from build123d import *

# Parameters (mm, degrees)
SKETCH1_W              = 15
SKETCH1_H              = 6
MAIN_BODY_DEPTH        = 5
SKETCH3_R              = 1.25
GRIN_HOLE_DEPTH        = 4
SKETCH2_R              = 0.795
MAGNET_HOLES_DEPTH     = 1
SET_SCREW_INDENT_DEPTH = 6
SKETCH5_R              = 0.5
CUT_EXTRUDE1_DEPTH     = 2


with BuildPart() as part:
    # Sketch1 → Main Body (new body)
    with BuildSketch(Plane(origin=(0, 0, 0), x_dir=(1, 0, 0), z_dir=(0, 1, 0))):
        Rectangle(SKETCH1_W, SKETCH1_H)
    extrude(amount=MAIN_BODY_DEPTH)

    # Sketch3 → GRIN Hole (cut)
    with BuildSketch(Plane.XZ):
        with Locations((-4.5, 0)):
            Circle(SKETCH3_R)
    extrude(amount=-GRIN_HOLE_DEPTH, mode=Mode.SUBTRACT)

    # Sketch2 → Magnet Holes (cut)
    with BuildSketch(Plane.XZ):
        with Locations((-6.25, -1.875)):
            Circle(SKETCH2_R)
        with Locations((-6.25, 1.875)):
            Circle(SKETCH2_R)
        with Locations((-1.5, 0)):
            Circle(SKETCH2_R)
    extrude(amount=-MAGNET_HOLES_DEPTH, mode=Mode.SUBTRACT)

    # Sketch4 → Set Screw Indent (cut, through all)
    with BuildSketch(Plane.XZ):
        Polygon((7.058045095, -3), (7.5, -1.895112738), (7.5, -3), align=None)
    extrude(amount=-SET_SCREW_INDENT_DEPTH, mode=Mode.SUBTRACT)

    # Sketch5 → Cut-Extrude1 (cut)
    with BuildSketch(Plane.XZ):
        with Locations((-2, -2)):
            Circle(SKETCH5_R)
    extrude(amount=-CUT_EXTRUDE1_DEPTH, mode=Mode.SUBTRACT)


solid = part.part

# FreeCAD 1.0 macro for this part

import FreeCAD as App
import Part
import Sketcher
Q = App.Units.Quantity


def add_polygon(sketch, points):
    """Adds a closed chain of lines whose ends are joined by coincident constraints."""
    first, n = sketch.GeometryCount, len(points)
    for a, b in zip(points, points[1:] + points[:1]):
        sketch.addGeometry(Part.LineSegment(App.Vector(*a, 0), App.Vector(*b, 0)), False)
    for i in range(n):
        sketch.addConstraint(Sketcher.Constraint("Coincident", first + i, 2, first + (i + 1) % n, 1))

doc = App.newDocument("Part")
body = doc.addObject("PartDesign::Body", "Body")

# Sketch on XZ plane
sketch1 = doc.addObject("Sketcher::SketchObject", "Sketch")
body.addObject(sketch1)
sketch1.AttachmentSupport = (doc.XZ_Plane, [""])
sketch1.MapMode = "FlatFace"
add_polygon(sketch1, [(-8, -3), (-8, 3), (8, 3), (8, -3)])  # lines 0-3
sketch1.addConstraint([
    Sketcher.Constraint("Vertical", 0),
    Sketcher.Constraint("Horizontal", 1),
    Sketcher.Constraint("Vertical", 2),
    Sketcher.Constraint("Horizontal", 3),
    Sketcher.Constraint("Symmetric", 0, 2, 2, 2, -1, 1),
    Sketcher.Constraint("DistanceX", 1, 1, 1, 2, Q("15 mm")),
    Sketcher.Constraint("DistanceY", 0, 1, 0, 2, Q("6 mm")),
])
pad1 = doc.addObject("PartDesign::Pad", "Pad")
body.addObject(pad1)
pad1.Profile = sketch1
pad1.Length = 5
pad1.Reversed = True

# Sketch on XZ plane
sketch2 = doc.addObject("Sketcher::SketchObject", "Sketch001")
body.addObject(sketch2)
sketch2.AttachmentSupport = (doc.XZ_Plane, [""])
sketch2.MapMode = "FlatFace"
sketch2.addGeometry(Part.Circle(App.Vector(-4.5, 0, 0), App.Vector(0, 0, 1), 1.2), False)
sketch2.addConstraint([
    Sketcher.Constraint("PointOnObject", 0, 3, -1),
    Sketcher.Constraint("Diameter", 0, Q("2.5 mm")),
    Sketcher.Constraint("DistanceX", 0, 3, -1, 1, Q("4.5 mm")),
])
pocket1 = doc.addObject("PartDesign::Pocket", "Pocket")
body.addObject(pocket1)
pocket1.Profile = sketch2
pocket1.Length = 4

# Sketch on XZ plane
sketch3 = doc.addObject("Sketcher::SketchObject", "Sketch002")
body.addObject(sketch3)
sketch3.AttachmentSupport = (doc.XZ_Plane, [""])
sketch3.MapMode = "FlatFace"
sketch3.addGeometry([
    Part.Circle(App.Vector(-6.2, -1.9, 0), App.Vector(0, 0, 1), 0.8),
    Part.Circle(App.Vector(-6.2, 1.9, 0), App.Vector(0, 0, 1), 0.8),
    Part.Circle(App.Vector(-1.5, 0, 0), App.Vector(0, 0, 1), 0.8),
], False)
sketch3.addConstraint([
    Sketcher.Constraint("Equal", 0, 1),
    Sketcher.Constraint("Equal", 1, 2),
    Sketcher.Constraint("Symmetric", 0, 3, 1, 3, -1),
    Sketcher.Constraint("PointOnObject", 2, 3, -1),
    Sketcher.Constraint("Diameter", 0, Q("1.59 mm")),
    Sketcher.Constraint("DistanceX", 2, 3, -1, 1, Q("1.5 mm")),
    Sketcher.Constraint("DistanceX", 0, 3, -1, 1, Q("6.25 mm")),
    Sketcher.Constraint("DistanceY", 0, 3, 1, 3, Q("3.75 mm")),
])
pocket2 = doc.addObject("PartDesign::Pocket", "Pocket001")
body.addObject(pocket2)
pocket2.Profile = sketch3
pocket2.Length = 1

# Sketch on XZ plane
sketch4 = doc.addObject("Sketcher::SketchObject", "Sketch003")
body.addObject(sketch4)
sketch4.AttachmentSupport = (doc.XZ_Plane, [""])
sketch4.MapMode = "FlatFace"
add_polygon(sketch4, [(7.5, -1.9), (7.06, -3), (7.5, -3)])  # lines 0-2
sketch4.addConstraint([
    Sketcher.Constraint("Horizontal", 1),
    Sketcher.Constraint("Vertical", 2),
    Sketcher.Constraint("DistanceY", 0, 2, -1, 1, Q("3 mm")),
    Sketcher.Constraint("DistanceX", -1, 1, 1, 2, Q("7.5 mm")),
    Sketcher.Constraint("Distance", 0, Q("1.19 mm")),
    Sketcher.Constraint("DistanceX", 1, 1, 1, 2, Q("0.441955 mm")),
])
pocket3 = doc.addObject("PartDesign::Pocket", "Pocket002")
body.addObject(pocket3)
pocket3.Profile = sketch4
pocket3.Type = "ThroughAll"

# Sketch on XZ plane
sketch5 = doc.addObject("Sketcher::SketchObject", "Sketch004")
body.addObject(sketch5)
sketch5.AttachmentSupport = (doc.XZ_Plane, [""])
sketch5.MapMode = "FlatFace"
sketch5.addGeometry(Part.Circle(App.Vector(-2, -2, 0), App.Vector(0, 0, 1), 0.5), False)
sketch5.addConstraint([
    Sketcher.Constraint("Diameter", 0, Q("1 mm")),
    Sketcher.Constraint("DistanceX", 0, 3, -1, 1, Q("2 mm")),
    Sketcher.Constraint("DistanceY", 0, 3, -1, 1, Q("2 mm")),
])
pocket4 = doc.addObject("PartDesign::Pocket", "Pocket003")
body.addObject(pocket4)
pocket4.Profile = sketch5
pocket4.Length = 2

doc.recompute()
